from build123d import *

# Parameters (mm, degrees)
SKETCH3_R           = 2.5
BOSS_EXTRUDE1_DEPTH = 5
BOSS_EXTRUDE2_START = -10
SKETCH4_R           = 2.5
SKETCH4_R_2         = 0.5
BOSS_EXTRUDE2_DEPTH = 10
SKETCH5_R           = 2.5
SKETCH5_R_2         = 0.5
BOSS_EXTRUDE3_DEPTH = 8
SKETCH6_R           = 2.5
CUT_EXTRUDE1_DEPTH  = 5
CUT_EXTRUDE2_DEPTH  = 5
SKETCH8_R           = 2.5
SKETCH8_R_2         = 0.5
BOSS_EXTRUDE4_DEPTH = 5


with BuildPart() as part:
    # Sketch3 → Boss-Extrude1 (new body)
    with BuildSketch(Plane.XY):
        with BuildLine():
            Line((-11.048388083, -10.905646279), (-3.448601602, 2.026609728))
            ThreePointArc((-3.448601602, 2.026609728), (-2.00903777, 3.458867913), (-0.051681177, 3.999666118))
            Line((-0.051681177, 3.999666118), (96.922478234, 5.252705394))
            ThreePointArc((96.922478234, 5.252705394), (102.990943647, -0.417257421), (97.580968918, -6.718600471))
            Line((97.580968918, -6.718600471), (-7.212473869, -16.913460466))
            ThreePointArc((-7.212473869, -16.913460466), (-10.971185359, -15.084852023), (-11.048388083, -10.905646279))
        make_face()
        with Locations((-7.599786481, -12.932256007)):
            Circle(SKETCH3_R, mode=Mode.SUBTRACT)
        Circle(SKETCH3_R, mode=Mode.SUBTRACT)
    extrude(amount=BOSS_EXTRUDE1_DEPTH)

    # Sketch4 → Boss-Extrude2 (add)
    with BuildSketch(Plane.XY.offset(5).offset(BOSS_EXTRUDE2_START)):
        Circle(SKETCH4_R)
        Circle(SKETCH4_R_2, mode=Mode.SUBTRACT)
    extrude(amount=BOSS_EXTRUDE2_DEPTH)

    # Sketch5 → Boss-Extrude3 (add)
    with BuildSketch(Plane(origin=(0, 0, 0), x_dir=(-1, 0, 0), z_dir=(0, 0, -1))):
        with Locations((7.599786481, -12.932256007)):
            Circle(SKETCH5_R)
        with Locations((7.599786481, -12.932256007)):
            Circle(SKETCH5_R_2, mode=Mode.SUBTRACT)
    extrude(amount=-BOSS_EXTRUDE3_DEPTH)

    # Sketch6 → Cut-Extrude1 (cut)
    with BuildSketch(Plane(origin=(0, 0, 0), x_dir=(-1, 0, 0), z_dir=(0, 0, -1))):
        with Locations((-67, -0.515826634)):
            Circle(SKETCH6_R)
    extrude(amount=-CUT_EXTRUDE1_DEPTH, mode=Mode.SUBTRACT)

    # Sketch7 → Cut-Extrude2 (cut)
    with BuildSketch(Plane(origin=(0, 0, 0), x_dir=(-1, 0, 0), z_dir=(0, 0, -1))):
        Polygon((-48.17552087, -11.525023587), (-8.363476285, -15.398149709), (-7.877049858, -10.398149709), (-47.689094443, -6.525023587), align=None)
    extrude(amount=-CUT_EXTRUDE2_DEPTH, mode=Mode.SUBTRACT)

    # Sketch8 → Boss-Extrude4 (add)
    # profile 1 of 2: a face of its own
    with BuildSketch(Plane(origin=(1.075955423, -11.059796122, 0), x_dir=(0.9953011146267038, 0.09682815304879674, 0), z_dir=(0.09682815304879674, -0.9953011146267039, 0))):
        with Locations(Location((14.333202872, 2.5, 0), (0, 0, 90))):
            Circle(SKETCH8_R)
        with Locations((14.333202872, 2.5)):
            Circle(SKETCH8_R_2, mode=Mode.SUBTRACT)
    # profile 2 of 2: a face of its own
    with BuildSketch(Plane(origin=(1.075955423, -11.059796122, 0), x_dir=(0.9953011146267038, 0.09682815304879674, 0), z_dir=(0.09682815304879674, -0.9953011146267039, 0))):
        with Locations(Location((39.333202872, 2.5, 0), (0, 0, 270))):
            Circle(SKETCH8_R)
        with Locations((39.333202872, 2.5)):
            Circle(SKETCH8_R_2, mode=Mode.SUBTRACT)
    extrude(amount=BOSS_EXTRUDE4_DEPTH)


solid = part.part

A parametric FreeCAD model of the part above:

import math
import FreeCAD as App
import Part
import Sketcher

V = App.Vector


def add_polygon(sketch, points):
    """Adds a closed chain of lines whose ends are joined by coincident constraints."""
    first, n = sketch.GeometryCount, len(points)
    for a, b in zip(points, points[1:] + points[:1]):
        sketch.addGeometry(Part.LineSegment(App.Vector(*a, 0), App.Vector(*b, 0)), False)
    for i in range(n):
        sketch.addConstraint(Sketcher.Constraint("Coincident", first + i, 2, first + (i + 1) % n, 1))

doc = App.newDocument("Part")
body = doc.addObject("PartDesign::Body", "Body")

# Sketch on XY plane
sketch1 = body.newObject("Sketcher::SketchObject", "Sketch")
sketch1.AttachmentSupport = (doc.getObject("XY_Plane"), [""])
sketch1.MapMode = "FlatFace"
sketch1.addGeometry([
    Part.LineSegment(V(-3.4, 2, 0), V(-11, -10.9, 0)),  # 0
    Part.ArcOfCircle(Part.Circle(V(-7.6, -12.9, 0), V(0, 0, 1), 4), math.radians(150), math.radians(276)),  # 1
    Part.LineSegment(V(-7.2, -16.9, 0), V(97.6, -6.7, 0)),  # 2
    Part.ArcOfCircle(Part.Circle(V(97, -0.7, 0), V(0, 0, 1), 6), math.radians(-84), math.radians(91)),  # 3
    Part.LineSegment(V(96.9, 5.3, 0), V(-0.1, 4, 0)),  # 4
    Part.ArcOfCircle(Part.Circle(V(0, 0, 0), V(0, 0, 1), 4), math.radians(91), math.radians(150)),  # 5
    Part.Circle(V(-7.6, -12.9, 0), V(0, 0, 1), 2.5),  # 6
    Part.Circle(V(0, 0, 0), V(0, 0, 1), 2.5),  # 7
], False)
sketch1.addConstraint([
    Sketcher.Constraint("Tangent", 0, 2, 1, 1),
    Sketcher.Constraint("Tangent", 1, 2, 2, 1),
    Sketcher.Constraint("Tangent", 2, 2, 3, 1),
    Sketcher.Constraint("Tangent", 3, 2, 4, 1),
    Sketcher.Constraint("Tangent", 4, 2, 5, 1),
    Sketcher.Constraint("Tangent", 5, 2, 0, 1),
    Sketcher.Constraint("Coincident", 5, 3, -1, 1),
    Sketcher.Constraint("Coincident", 7, 3, -1, 1),
    Sketcher.Constraint("Coincident", 6, 3, 1, 3),
    Sketcher.Constraint("Equal", 1, 5),
    Sketcher.Constraint("Equal", 6, 7),
    Sketcher.Constraint("Diameter", 6, 5.0),
    Sketcher.Constraint("Radius", 1, 4.0),
    Sketcher.Constraint("Radius", 3, 6.0),
    Sketcher.Constraint("Distance", 0, 15.0),
    Sketcher.Constraint("DistanceX", -1, 1, 3, 3, 97.0),
    Sketcher.Constraint("DistanceY", 2, 2, -1, 1, 6.7186),
    Sketcher.Constraint("DistanceX", 5, 2, -1, 1, 3.448602),
])
pad1 = body.newObject("PartDesign::Pad", "Pad")
pad1.Profile = sketch1
pad1.Length = 5

# Sketch on XY plane
sketch2 = body.newObject("Sketcher::SketchObject", "Sketch001")
sketch2.AttachmentSupport = (doc.getObject("XY_Plane"), [""])
sketch2.MapMode = "FlatFace"
sketch2.AttachmentOffset = App.Placement(V(0, 0, -5), App.Rotation())
sketch2.addGeometry([
    Part.Circle(V(0, 0, 0), V(0, 0, 1), 2.5),
    Part.Circle(V(0, 0, 0), V(0, 0, 1), 0.5),
], False)
sketch2.addConstraint([
    Sketcher.Constraint("Coincident", 0, 3, -1, 1),
    Sketcher.Constraint("Coincident", 1, 3, -1, 1),
    Sketcher.Constraint("Diameter", 0, 5.0),
    Sketcher.Constraint("Diameter", 1, 1.0),
])
pad2 = body.newObject("PartDesign::Pad", "Pad001")
pad2.Profile = sketch2
pad2.Length = 10

# Sketch on XY plane
sketch3 = body.newObject("Sketcher::SketchObject", "Sketch002")
sketch3.AttachmentSupport = (doc.getObject("XY_Plane"), [""])
sketch3.MapMode = "FlatFace"
sketch3.addGeometry([
    Part.Circle(V(-7.6, -12.9, 0), V(0, 0, 1), 2.5),
    Part.Circle(V(-7.6, -12.9, 0), V(0, 0, 1), 0.5),
], False)
sketch3.addConstraint([
    Sketcher.Constraint("Coincident", 1, 3, 0, 3),
    Sketcher.Constraint("Diameter", 0, 5.0),
    Sketcher.Constraint("Diameter", 1, 1.0),
    Sketcher.Constraint("DistanceX", 0, 3, -1, 1, 7.599786),
    Sketcher.Constraint("DistanceY", 0, 3, -1, 1, 12.932256),
])
pad3 = body.newObject("PartDesign::Pad", "Pad002")
pad3.Profile = sketch3
pad3.Length = 8

# Sketch on XY plane
sketch4 = body.newObject("Sketcher::SketchObject", "Sketch003")
sketch4.AttachmentSupport = (doc.getObject("XY_Plane"), [""])
sketch4.MapMode = "FlatFace"
sketch4.addGeometry(Part.Circle(V(67, -0.5, 0), V(0, 0, 1), 2.5), False)
sketch4.addConstraint([
    Sketcher.Constraint("Diameter", 0, 5.0),
    Sketcher.Constraint("DistanceX", -1, 1, 0, 3, 67.0),
    Sketcher.Constraint("DistanceY", 0, 3, -1, 1, 0.515827),
])
pocket1 = body.newObject("PartDesign::Pocket", "Pocket")
pocket1.Profile = sketch4
pocket1.Length = 5
pocket1.Reversed = True

# Sketch on XY plane
sketch5 = body.newObject("Sketcher::SketchObject", "Sketch004")
sketch5.AttachmentSupport = (doc.getObject("XY_Plane"), [""])
sketch5.MapMode = "FlatFace"
add_polygon(sketch5, [(48, -12), (8, -15), (8, -10), (48, -7)])  # lines 0-3
sketch5.addConstraint([
    Sketcher.Constraint("Perpendicular", 0, 1),
    Sketcher.Constraint("Perpendicular", 1, 2),
    Sketcher.Constraint("Perpendicular", 2, 3),
    Sketcher.Constraint("Distance", 0, 40.0),
    Sketcher.Constraint("DistanceY", 0, 2, 1, 2, 5.0),
    Sketcher.Constraint("DistanceY", 0, 2, -1, 1, 15.39815),
    Sketcher.Constraint("DistanceX", -1, 1, 1, 2, 7.87705),
    Sketcher.Constraint("DistanceX", -1, 1, 3, 2, 48.175521),
])
pocket2 = body.newObject("PartDesign::Pocket", "Pocket001")
pocket2.Profile = sketch5
pocket2.Length = 5
pocket2.Reversed = True

# Sketch on an angled plane
sketch6 = body.newObject("Sketcher::SketchObject", "Sketch005")
sketch6.Placement = App.Placement(V(1.075955, -11.059796, 0), App.Rotation(V(0.995301115, 0.096828153, 0), V(0, 0, 1.000000001), V(0.096828153, -0.995301115, 0), "ZXY"))
sketch6.addGeometry([
    Part.Circle(V(14.3, 2.5, 0), V(0, 0, 1), 2.5),
    Part.Circle(V(14.3, 2.5, 0), V(0, 0, 1), 0.5),
    Part.Circle(V(39.3, 2.5, 0), V(0, 0, 1), 2.5),
    Part.Circle(V(39.3, 2.5, 0), V(0, 0, 1), 0.5),
], False)
sketch6.addConstraint([
    Sketcher.Constraint("Coincident", 1, 3, 0, 3),
    Sketcher.Constraint("Coincident", 3, 3, 2, 3),
    Sketcher.Constraint("Equal", 0, 2),
    Sketcher.Constraint("Equal", 1, 3),
    Sketcher.Constraint("Horizontal", 1, 3, 2, 3),
    Sketcher.Constraint("Diameter", 0, 5.0),
    Sketcher.Constraint("Diameter", 1, 1.0),
    Sketcher.Constraint("DistanceX", 0, 3, 2, 3, 25.0),
    Sketcher.Constraint("DistanceY", -1, 1, 0, 3, 2.5),
    Sketcher.Constraint("DistanceX", -1, 1, 0, 3, 14.333203),
])
pad4 = body.newObject("PartDesign::Pad", "Pad003")
pad4.Profile = sketch6
pad4.Length = 5

doc.recompute()
